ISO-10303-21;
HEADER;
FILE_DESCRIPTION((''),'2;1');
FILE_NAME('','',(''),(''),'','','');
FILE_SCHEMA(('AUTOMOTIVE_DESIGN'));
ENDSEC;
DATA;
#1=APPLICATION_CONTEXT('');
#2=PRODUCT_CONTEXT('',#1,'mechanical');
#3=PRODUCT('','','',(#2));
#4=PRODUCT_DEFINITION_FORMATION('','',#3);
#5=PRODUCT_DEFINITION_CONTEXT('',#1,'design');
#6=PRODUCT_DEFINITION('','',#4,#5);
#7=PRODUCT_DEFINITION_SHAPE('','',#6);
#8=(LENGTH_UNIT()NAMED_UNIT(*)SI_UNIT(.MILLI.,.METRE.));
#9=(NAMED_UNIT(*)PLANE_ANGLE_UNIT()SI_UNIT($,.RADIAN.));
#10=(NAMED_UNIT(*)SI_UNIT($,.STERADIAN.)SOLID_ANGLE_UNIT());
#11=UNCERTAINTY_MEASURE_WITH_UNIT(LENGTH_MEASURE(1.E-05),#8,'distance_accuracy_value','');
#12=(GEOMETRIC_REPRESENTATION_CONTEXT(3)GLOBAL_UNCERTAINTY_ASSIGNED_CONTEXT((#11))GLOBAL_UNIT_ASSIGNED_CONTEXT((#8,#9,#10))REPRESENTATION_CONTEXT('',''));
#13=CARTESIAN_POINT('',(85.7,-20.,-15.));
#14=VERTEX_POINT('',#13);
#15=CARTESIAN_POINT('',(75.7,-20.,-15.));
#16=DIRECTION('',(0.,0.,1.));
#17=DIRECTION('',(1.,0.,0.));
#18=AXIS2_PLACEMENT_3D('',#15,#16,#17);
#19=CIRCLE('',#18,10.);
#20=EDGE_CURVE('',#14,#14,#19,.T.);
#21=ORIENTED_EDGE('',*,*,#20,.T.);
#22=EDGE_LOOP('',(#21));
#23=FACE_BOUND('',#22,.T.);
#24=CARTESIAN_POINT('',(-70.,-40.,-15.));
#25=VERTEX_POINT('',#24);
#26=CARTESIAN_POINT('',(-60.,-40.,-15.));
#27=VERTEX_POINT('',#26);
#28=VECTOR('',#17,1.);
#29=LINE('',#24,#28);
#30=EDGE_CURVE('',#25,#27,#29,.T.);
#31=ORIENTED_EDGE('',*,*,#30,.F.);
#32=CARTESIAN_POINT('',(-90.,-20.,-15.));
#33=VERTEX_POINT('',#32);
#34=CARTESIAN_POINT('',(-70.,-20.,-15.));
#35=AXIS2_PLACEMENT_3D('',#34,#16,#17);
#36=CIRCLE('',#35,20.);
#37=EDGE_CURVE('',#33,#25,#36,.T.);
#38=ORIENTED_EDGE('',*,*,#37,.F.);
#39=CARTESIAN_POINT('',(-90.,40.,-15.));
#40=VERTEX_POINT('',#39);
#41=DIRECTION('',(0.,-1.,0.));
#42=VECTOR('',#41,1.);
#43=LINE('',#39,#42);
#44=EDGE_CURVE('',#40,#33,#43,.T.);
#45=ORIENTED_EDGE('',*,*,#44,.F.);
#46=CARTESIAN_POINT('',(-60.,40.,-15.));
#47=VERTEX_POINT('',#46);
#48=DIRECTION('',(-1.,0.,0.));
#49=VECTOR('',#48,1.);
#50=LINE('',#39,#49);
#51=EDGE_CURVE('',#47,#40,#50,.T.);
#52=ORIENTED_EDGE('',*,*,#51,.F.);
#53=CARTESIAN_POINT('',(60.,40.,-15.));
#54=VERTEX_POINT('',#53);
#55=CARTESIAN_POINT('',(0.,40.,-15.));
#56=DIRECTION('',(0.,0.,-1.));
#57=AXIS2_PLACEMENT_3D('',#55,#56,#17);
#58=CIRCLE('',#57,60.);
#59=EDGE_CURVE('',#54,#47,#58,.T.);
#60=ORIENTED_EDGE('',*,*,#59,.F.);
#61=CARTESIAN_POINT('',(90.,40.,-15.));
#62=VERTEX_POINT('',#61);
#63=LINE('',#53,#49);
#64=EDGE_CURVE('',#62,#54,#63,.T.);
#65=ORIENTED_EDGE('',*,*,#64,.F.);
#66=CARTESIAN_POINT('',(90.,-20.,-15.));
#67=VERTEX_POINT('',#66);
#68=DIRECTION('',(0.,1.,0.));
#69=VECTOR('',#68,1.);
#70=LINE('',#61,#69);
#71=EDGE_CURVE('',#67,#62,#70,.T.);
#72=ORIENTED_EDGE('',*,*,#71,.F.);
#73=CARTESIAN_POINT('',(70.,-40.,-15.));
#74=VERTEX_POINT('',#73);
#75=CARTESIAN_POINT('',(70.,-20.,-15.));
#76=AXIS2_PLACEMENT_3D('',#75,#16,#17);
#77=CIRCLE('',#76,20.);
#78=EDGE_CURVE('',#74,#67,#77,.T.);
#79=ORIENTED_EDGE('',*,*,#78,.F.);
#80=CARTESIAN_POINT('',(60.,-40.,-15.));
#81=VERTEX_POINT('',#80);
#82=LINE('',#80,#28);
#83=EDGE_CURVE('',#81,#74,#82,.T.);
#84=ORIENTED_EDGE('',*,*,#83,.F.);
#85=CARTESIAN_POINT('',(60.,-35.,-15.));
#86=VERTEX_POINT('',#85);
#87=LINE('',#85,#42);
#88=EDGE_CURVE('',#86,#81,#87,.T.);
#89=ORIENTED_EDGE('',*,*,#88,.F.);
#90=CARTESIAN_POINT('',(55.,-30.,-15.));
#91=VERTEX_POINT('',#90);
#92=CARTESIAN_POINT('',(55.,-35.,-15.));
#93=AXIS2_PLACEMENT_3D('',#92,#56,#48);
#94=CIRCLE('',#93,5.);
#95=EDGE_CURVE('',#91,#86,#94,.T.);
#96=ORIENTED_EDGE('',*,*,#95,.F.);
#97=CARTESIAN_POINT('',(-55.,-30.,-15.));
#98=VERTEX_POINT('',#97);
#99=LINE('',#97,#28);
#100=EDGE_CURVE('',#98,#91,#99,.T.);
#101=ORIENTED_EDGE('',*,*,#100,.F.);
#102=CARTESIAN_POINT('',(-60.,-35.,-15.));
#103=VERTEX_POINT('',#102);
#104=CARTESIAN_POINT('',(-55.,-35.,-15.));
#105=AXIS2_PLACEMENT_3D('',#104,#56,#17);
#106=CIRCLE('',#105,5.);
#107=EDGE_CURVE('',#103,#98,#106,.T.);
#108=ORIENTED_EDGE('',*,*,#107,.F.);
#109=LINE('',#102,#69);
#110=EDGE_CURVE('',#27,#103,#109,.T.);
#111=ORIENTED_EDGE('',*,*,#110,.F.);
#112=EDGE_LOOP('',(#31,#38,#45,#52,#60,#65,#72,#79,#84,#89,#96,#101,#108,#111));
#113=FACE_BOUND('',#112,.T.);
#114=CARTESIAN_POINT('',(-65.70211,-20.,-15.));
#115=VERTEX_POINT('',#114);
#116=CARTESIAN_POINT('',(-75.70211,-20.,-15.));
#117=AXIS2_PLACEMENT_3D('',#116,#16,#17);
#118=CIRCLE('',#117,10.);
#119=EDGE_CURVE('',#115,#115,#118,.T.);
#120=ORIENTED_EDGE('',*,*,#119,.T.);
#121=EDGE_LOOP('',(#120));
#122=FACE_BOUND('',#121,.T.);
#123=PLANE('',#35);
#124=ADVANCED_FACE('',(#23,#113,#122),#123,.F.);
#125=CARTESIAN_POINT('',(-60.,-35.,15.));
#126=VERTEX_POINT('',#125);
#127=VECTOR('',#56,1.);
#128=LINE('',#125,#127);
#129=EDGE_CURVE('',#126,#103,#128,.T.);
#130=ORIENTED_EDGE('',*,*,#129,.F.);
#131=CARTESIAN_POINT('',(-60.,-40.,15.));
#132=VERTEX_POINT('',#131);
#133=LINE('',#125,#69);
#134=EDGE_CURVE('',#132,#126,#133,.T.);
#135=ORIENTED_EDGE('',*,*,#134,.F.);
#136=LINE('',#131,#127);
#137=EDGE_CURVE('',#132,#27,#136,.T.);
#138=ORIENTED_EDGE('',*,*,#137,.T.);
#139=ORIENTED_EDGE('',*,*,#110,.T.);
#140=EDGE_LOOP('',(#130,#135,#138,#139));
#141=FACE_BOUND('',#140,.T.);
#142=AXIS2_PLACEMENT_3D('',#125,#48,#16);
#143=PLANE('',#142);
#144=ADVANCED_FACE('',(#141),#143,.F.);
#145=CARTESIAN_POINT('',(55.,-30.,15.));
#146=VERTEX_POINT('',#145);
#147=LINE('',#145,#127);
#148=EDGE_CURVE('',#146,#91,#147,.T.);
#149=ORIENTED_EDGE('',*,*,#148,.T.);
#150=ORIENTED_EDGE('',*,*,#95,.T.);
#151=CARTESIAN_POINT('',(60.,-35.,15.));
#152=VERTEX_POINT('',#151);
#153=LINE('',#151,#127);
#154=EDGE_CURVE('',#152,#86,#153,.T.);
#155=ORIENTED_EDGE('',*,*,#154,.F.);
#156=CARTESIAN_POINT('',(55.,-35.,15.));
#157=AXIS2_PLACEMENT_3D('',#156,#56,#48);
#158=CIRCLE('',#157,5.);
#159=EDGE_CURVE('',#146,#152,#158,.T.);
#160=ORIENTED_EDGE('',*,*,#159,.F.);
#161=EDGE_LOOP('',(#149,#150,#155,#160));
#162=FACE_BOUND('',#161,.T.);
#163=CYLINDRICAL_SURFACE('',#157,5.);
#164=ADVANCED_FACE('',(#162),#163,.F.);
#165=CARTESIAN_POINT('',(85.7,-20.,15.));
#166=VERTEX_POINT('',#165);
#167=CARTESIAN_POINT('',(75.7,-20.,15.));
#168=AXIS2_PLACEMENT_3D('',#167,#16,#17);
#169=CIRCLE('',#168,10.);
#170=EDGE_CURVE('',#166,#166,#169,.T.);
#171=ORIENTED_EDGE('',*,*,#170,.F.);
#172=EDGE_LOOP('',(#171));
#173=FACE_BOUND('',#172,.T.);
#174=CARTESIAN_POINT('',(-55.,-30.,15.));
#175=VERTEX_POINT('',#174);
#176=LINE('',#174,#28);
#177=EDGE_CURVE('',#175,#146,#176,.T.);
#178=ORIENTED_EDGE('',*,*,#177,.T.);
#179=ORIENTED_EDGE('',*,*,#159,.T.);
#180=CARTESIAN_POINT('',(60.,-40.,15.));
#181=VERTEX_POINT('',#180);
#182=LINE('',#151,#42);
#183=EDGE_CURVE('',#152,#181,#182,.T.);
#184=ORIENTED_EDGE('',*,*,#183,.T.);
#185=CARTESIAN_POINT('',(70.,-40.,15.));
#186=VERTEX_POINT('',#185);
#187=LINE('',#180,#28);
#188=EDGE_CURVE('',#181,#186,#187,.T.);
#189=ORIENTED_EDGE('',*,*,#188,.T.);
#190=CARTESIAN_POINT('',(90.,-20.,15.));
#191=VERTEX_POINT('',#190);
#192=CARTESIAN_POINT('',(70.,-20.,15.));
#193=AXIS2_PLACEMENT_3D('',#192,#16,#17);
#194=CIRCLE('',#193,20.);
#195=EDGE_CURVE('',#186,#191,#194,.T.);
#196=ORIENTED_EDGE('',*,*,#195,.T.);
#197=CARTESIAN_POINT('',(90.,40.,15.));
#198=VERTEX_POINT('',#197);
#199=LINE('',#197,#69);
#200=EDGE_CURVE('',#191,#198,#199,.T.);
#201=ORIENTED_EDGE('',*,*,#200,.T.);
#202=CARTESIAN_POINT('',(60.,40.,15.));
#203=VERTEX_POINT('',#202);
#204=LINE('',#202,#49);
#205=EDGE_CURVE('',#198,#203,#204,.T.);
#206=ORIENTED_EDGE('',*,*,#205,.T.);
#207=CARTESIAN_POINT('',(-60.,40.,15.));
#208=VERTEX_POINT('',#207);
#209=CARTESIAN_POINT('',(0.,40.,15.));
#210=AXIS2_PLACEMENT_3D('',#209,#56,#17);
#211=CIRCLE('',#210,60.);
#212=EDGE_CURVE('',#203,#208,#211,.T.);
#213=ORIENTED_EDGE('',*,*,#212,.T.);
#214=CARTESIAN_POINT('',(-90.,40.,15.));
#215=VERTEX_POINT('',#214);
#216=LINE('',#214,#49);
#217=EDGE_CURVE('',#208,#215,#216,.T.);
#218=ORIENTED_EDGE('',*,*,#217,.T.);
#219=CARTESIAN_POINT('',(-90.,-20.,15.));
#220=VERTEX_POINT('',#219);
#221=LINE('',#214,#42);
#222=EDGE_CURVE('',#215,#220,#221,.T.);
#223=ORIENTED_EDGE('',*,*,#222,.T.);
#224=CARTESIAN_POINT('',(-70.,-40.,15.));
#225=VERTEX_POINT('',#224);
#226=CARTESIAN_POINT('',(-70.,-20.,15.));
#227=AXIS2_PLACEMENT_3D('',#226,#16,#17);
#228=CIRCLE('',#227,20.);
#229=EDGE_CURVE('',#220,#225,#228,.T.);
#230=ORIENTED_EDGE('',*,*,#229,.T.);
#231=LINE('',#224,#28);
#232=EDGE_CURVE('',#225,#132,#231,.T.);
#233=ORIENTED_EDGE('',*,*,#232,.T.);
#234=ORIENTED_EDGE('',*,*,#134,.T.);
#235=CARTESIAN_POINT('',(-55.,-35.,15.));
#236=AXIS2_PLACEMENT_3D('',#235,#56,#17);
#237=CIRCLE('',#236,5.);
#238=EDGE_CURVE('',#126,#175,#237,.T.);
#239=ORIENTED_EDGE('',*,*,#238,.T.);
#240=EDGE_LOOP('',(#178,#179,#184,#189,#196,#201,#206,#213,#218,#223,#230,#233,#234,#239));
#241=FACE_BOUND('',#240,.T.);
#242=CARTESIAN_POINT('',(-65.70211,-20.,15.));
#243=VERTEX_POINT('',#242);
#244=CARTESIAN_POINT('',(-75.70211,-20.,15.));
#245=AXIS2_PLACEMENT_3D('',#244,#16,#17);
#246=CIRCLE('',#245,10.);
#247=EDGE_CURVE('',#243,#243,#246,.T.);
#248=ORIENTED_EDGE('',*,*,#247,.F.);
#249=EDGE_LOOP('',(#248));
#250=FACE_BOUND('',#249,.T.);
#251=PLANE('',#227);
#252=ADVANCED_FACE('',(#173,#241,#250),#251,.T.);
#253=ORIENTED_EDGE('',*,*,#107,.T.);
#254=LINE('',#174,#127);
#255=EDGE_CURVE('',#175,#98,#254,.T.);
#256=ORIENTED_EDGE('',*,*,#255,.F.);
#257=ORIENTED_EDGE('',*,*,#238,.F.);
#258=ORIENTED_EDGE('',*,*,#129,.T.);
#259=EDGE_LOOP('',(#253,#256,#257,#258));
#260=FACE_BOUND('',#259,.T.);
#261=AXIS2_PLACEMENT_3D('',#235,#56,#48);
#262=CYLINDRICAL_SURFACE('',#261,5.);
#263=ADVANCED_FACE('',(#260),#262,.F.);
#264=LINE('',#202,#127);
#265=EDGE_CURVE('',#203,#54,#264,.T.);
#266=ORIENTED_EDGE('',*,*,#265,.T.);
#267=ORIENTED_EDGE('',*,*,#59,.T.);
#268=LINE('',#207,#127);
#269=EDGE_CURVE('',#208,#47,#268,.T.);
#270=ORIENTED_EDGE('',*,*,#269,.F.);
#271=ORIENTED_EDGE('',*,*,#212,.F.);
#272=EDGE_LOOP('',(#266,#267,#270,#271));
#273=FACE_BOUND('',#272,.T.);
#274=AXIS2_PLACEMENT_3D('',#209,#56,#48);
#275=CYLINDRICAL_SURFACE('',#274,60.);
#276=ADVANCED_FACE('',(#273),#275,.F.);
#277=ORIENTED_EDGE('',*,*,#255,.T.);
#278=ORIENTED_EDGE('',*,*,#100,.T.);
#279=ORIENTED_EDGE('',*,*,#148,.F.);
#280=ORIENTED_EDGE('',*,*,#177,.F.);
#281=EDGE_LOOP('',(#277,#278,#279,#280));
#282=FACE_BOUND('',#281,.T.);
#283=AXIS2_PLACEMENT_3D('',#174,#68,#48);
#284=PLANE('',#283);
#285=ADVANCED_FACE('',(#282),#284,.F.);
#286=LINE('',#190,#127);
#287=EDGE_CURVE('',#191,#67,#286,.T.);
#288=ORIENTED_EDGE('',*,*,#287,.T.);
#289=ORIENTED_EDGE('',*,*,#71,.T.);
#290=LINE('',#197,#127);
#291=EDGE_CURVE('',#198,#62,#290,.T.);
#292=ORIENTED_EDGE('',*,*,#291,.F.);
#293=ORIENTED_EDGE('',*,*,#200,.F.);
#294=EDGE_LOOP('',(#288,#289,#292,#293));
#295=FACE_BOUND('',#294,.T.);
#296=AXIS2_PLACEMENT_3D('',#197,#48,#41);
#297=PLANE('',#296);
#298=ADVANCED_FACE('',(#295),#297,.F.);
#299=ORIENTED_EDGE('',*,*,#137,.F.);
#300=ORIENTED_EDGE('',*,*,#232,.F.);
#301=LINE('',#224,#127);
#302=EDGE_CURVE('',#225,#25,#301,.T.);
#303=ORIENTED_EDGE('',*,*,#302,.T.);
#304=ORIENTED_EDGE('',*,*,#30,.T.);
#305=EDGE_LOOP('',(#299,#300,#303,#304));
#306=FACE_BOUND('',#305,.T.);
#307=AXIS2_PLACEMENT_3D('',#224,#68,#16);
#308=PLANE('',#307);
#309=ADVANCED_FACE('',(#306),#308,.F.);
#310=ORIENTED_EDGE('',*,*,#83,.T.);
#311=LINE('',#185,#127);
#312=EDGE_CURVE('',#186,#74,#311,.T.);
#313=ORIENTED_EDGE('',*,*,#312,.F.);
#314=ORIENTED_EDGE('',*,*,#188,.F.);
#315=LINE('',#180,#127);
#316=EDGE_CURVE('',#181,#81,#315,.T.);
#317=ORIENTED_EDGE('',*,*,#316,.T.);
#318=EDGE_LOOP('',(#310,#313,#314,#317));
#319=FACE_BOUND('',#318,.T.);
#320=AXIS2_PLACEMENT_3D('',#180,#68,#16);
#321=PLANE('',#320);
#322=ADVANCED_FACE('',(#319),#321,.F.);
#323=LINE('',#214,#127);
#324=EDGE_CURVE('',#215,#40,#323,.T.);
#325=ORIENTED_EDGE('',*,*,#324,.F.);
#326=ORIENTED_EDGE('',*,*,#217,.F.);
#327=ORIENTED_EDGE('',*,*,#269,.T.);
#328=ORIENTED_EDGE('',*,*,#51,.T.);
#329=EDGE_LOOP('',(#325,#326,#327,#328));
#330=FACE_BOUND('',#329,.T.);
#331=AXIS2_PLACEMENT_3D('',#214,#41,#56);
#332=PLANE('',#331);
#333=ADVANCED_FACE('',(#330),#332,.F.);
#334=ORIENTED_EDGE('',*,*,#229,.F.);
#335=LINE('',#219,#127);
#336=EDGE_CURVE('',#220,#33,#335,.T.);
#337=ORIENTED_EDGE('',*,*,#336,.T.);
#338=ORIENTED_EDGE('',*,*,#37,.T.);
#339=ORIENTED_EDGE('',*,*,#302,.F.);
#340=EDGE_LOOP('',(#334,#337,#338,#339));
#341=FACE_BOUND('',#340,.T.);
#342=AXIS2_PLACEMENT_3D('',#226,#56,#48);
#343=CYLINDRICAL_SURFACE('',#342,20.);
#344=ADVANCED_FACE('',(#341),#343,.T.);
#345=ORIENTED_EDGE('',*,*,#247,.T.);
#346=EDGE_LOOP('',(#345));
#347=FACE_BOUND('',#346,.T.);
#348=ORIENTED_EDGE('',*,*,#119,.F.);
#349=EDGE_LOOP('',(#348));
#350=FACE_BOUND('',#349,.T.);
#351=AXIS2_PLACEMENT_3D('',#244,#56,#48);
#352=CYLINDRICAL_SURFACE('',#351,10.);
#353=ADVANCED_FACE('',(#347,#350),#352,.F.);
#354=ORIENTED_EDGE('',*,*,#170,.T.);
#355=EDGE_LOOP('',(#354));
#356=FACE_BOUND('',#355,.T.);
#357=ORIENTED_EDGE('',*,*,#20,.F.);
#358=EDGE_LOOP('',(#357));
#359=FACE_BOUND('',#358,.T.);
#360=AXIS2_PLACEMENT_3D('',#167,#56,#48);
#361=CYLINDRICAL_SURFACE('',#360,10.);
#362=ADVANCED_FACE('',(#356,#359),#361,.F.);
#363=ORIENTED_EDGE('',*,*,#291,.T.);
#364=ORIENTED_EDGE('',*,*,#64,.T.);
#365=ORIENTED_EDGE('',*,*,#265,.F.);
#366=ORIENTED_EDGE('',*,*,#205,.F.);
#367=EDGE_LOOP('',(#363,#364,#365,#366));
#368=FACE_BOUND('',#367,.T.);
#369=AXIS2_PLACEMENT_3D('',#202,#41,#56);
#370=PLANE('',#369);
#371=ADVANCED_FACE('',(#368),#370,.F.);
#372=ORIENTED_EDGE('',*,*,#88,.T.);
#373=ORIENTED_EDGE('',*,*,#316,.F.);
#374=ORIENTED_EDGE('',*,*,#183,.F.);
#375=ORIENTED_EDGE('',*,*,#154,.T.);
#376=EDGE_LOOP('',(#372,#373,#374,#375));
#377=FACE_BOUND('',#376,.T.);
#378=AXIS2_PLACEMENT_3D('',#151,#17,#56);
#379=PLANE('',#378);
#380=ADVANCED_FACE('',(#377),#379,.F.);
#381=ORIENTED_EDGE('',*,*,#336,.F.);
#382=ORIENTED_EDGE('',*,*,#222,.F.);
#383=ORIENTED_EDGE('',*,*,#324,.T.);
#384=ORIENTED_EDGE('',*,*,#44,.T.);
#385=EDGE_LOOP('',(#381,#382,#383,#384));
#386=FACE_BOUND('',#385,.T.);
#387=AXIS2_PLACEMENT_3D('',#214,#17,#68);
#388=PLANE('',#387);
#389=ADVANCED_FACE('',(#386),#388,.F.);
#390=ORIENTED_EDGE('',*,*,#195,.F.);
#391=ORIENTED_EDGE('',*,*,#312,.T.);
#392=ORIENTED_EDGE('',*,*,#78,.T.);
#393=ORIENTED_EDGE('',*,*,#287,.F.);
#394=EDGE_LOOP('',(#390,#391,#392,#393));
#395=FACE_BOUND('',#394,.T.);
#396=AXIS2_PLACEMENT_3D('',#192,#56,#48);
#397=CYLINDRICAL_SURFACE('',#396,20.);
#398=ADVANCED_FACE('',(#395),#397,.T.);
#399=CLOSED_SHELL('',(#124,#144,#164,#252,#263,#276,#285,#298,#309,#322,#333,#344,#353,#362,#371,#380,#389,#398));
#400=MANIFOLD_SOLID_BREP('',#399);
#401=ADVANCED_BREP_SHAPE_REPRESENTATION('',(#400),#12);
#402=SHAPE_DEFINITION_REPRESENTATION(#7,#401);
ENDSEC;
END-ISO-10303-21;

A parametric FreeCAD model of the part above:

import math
import FreeCAD as App
import Part
import Sketcher

V = App.Vector

doc = App.newDocument("Part")
body = doc.addObject("PartDesign::Body", "Body")

# Sketch on XY plane
sketch1 = body.newObject("Sketcher::SketchObject", "Sketch")
sketch1.AttachmentSupport = (doc.getObject("XY_Plane"), [""])
sketch1.MapMode = "FlatFace"
sketch1.addGeometry(Part.LineSegment(V(90, 40, 0), V(60, 40, 0)), False)
sketch1.addGeometry(Part.ArcOfCircle(Part.Circle(V(0, 40, 0), V(0, 0, 1), 60), math.radians(180), math.radians(360)), False)
sketch1.addGeometry(Part.LineSegment(V(-60, 40, 0), V(-90, 40, 0)), False)
sketch1.addGeometry(Part.LineSegment(V(-90, 40, 0), V(-90, -20, 0)), False)
sketch1.addGeometry(Part.ArcOfCircle(Part.Circle(V(-70, -20, 0), V(0, 0, 1), 20), math.radians(180), math.radians(270)), False)
sketch1.addGeometry(Part.LineSegment(V(-70, -40, 0), V(-60, -40, 0)), False)
sketch1.addGeometry(Part.LineSegment(V(-60, -40, 0), V(-60, -35, 0)), False)
sketch1.addGeometry(Part.ArcOfCircle(Part.Circle(V(-55, -35, 0), V(0, 0, 1), 5), math.radians(90), math.radians(180)), False)
sketch1.addGeometry(Part.LineSegment(V(-55, -30, 0), V(55, -30, 0)), False)
sketch1.addGeometry(Part.ArcOfCircle(Part.Circle(V(55, -35, 0), V(0, 0, 1), 5), math.radians(0), math.radians(90)), False)
sketch1.addGeometry(Part.LineSegment(V(60, -35, 0), V(60, -40, 0)), False)
sketch1.addGeometry(Part.LineSegment(V(60, -40, 0), V(70, -40, 0)), False)
sketch1.addGeometry(Part.ArcOfCircle(Part.Circle(V(70, -20, 0), V(0, 0, 1), 20), math.radians(-90), math.radians(0)), False)
sketch1.addGeometry(Part.LineSegment(V(90, -20, 0), V(90, 40, 0)), False)
sketch1.addGeometry(Part.Circle(V(76, -20, 0), V(0, 0, 1), 10), False)
sketch1.addGeometry(Part.Circle(V(-76, -20, 0), V(0, 0, 1), 10), False)
sketch1.addConstraint(Sketcher.Constraint("Coincident", 0, 2, 1, 2))
sketch1.addConstraint(Sketcher.Constraint("Coincident", 1, 1, 2, 1))
sketch1.addConstraint(Sketcher.Constraint("Coincident", 2, 2, 3, 1))
sketch1.addConstraint(Sketcher.Constraint("Tangent", 3, 2, 4, 1))
sketch1.addConstraint(Sketcher.Constraint("Tangent", 4, 2, 5, 1))
sketch1.addConstraint(Sketcher.Constraint("Coincident", 5, 2, 6, 1))
sketch1.addConstraint(Sketcher.Constraint("Tangent", 6, 2, 7, 2))
sketch1.addConstraint(Sketcher.Constraint("Tangent", 7, 1, 8, 1))
sketch1.addConstraint(Sketcher.Constraint("Tangent", 8, 2, 9, 2))
sketch1.addConstraint(Sketcher.Constraint("Tangent", 9, 1, 10, 1))
sketch1.addConstraint(Sketcher.Constraint("Coincident", 10, 2, 11, 1))
sketch1.addConstraint(Sketcher.Constraint("Tangent", 11, 2, 12, 1))
sketch1.addConstraint(Sketcher.Constraint("Tangent", 12, 2, 13, 1))
sketch1.addConstraint(Sketcher.Constraint("Coincident", 13, 2, 0, 1))
sketch1.addConstraint(Sketcher.Constraint("Horizontal", 0))
sketch1.addConstraint(Sketcher.Constraint("Horizontal", 2))
sketch1.addConstraint(Sketcher.Constraint("Vertical", 3))
sketch1.addConstraint(Sketcher.Constraint("Horizontal", 5))
sketch1.addConstraint(Sketcher.Constraint("Vertical", 6))
sketch1.addConstraint(Sketcher.Constraint("Horizontal", 8))
sketch1.addConstraint(Sketcher.Constraint("Vertical", 10))
sketch1.addConstraint(Sketcher.Constraint("Horizontal", 11))
sketch1.addConstraint(Sketcher.Constraint("Vertical", 13))
sketch1.addConstraint(Sketcher.Constraint("Equal", 7, 9))
sketch1.addConstraint(Sketcher.Constraint("Equal", 4, 12))
sketch1.addConstraint(Sketcher.Constraint("Equal", 14, 15))
sketch1.addConstraint(Sketcher.Constraint("Symmetric", 0, 2, 5, 2, -1, 1))
sketch1.addConstraint(Sketcher.Constraint("Symmetric", 1, 1, 10, 2, -1, 1))
sketch1.addConstraint(Sketcher.Constraint("Symmetric", 4, 3, 12, 3, -2))
sketch1.addConstraint(Sketcher.Constraint("PointOnObject", 1, 3, -2))
sketch1.addConstraint(Sketcher.Constraint("Horizontal", 12, 3, 14, 3))
sketch1.addConstraint(Sketcher.Constraint("Horizontal", 14, 3, 15, 3))
sketch1.addConstraint(Sketcher.Constraint("Horizontal", 1, 3, 0, 2))
sketch1.addConstraint(Sketcher.Constraint("Diameter", 14, 20.0))
sketch1.addConstraint(Sketcher.Constraint("Radius", 1, 60.0))
sketch1.addConstraint(Sketcher.Constraint("Radius", 4, 20.0))
sketch1.addConstraint(Sketcher.Constraint("Radius", 7, 5.0))
sketch1.addConstraint(Sketcher.Constraint("DistanceX", 0, 2, 0, 1, 30.0))
sketch1.addConstraint(Sketcher.Constraint("DistanceY", 3, 2, 3, 1, 60.0))
sketch1.addConstraint(Sketcher.Constraint("DistanceY", 6, 1, 6, 2, 5.0))
sketch1.addConstraint(Sketcher.Constraint("DistanceX", -1, 1, 14, 3, 75.7))
sketch1.addConstraint(Sketcher.Constraint("DistanceX", 15, 3, -1, 1, 75.70211))
pad1 = body.newObject("PartDesign::Pad", "Pad")
pad1.Profile = sketch1
pad1.Length = 30
pad1.Midplane = True

doc.recompute()
